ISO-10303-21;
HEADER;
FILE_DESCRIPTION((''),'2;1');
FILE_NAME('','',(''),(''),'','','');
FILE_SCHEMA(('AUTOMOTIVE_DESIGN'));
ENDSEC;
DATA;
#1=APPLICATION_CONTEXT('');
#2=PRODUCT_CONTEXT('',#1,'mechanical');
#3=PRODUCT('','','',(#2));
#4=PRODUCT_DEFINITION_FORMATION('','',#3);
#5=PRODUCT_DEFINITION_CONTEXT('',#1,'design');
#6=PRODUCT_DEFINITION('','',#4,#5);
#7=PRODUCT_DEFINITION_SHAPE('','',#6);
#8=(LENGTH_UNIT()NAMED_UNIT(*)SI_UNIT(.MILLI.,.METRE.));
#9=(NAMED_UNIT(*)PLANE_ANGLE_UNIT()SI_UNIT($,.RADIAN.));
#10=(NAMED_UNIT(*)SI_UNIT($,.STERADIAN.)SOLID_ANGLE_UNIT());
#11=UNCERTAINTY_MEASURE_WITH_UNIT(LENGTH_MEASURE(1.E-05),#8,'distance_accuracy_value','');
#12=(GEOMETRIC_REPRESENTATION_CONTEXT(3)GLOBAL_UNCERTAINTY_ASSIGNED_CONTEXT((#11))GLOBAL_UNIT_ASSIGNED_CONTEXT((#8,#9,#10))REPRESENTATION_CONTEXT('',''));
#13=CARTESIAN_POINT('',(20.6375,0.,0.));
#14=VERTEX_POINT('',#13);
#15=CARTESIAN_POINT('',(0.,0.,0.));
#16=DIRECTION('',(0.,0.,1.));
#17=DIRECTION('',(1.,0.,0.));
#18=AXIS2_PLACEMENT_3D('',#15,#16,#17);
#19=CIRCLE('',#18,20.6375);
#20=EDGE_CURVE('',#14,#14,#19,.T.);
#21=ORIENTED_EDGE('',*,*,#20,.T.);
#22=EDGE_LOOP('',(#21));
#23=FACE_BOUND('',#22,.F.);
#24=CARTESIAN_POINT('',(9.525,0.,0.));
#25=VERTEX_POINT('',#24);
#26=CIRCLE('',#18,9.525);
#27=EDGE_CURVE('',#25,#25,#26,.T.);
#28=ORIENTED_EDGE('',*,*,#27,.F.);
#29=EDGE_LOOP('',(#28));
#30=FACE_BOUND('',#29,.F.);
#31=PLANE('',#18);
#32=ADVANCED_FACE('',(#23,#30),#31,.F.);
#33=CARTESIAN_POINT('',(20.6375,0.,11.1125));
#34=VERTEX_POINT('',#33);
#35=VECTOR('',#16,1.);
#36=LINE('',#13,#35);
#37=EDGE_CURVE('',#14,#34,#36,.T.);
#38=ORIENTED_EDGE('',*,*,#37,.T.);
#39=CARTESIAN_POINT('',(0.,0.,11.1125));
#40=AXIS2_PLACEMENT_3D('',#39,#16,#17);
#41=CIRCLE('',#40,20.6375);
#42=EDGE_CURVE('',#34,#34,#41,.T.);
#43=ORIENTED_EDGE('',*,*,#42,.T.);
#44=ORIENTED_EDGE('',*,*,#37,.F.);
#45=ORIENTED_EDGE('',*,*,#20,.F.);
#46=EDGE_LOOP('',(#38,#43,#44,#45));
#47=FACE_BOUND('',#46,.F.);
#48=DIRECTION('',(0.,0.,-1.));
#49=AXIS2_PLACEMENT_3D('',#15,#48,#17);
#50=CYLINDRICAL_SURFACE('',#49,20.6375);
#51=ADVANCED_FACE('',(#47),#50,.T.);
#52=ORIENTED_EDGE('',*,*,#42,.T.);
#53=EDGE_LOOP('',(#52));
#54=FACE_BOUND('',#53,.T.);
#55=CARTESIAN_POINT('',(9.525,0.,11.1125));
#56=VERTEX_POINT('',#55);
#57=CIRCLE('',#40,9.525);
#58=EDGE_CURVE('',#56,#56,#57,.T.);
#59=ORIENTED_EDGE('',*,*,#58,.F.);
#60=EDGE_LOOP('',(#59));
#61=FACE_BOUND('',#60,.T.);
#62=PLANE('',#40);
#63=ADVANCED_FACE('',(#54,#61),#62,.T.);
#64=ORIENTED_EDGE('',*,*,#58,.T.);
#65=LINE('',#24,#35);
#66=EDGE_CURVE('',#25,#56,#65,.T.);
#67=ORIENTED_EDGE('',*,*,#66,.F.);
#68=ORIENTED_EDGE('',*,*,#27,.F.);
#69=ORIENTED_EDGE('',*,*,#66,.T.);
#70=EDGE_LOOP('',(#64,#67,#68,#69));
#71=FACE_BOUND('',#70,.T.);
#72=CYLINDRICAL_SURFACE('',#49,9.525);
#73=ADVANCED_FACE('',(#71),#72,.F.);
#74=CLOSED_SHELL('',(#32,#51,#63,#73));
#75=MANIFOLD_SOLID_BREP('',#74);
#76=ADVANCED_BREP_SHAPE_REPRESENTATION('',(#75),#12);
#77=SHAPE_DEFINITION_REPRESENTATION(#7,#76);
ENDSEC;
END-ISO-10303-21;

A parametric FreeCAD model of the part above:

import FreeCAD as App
import Part
import Sketcher
Q = App.Units.Quantity

doc = App.newDocument("Part")
body = doc.addObject("PartDesign::Body", "Body")

# Sketch on XY plane
sketch1 = doc.addObject("Sketcher::SketchObject", "Sketch")
body.addObject(sketch1)
sketch1.AttachmentSupport = (doc.XY_Plane, [""])
sketch1.MapMode = "FlatFace"
sketch1.addGeometry(Part.Circle(App.Vector(0, 0, 0), App.Vector(0, 0, 1), 20.6375), False)
sketch1.addGeometry(Part.Circle(App.Vector(0, 0, 0), App.Vector(0, 0, 1), 9.525), False)
sketch1.addConstraint(Sketcher.Constraint("Coincident", 0, 3, -1, 1))
sketch1.addConstraint(Sketcher.Constraint("Coincident", 1, 3, -1, 1))
sketch1.addConstraint(Sketcher.Constraint("Diameter", 1, Q("0.75 in")))
sketch1.addConstraint(Sketcher.Constraint("Diameter", 0, Q("1.625 in")))
pad1 = doc.addObject("PartDesign::Pad", "Pad")
body.addObject(pad1)
pad1.Profile = sketch1
pad1.Length = Q("0.4375 in")

doc.recompute()
